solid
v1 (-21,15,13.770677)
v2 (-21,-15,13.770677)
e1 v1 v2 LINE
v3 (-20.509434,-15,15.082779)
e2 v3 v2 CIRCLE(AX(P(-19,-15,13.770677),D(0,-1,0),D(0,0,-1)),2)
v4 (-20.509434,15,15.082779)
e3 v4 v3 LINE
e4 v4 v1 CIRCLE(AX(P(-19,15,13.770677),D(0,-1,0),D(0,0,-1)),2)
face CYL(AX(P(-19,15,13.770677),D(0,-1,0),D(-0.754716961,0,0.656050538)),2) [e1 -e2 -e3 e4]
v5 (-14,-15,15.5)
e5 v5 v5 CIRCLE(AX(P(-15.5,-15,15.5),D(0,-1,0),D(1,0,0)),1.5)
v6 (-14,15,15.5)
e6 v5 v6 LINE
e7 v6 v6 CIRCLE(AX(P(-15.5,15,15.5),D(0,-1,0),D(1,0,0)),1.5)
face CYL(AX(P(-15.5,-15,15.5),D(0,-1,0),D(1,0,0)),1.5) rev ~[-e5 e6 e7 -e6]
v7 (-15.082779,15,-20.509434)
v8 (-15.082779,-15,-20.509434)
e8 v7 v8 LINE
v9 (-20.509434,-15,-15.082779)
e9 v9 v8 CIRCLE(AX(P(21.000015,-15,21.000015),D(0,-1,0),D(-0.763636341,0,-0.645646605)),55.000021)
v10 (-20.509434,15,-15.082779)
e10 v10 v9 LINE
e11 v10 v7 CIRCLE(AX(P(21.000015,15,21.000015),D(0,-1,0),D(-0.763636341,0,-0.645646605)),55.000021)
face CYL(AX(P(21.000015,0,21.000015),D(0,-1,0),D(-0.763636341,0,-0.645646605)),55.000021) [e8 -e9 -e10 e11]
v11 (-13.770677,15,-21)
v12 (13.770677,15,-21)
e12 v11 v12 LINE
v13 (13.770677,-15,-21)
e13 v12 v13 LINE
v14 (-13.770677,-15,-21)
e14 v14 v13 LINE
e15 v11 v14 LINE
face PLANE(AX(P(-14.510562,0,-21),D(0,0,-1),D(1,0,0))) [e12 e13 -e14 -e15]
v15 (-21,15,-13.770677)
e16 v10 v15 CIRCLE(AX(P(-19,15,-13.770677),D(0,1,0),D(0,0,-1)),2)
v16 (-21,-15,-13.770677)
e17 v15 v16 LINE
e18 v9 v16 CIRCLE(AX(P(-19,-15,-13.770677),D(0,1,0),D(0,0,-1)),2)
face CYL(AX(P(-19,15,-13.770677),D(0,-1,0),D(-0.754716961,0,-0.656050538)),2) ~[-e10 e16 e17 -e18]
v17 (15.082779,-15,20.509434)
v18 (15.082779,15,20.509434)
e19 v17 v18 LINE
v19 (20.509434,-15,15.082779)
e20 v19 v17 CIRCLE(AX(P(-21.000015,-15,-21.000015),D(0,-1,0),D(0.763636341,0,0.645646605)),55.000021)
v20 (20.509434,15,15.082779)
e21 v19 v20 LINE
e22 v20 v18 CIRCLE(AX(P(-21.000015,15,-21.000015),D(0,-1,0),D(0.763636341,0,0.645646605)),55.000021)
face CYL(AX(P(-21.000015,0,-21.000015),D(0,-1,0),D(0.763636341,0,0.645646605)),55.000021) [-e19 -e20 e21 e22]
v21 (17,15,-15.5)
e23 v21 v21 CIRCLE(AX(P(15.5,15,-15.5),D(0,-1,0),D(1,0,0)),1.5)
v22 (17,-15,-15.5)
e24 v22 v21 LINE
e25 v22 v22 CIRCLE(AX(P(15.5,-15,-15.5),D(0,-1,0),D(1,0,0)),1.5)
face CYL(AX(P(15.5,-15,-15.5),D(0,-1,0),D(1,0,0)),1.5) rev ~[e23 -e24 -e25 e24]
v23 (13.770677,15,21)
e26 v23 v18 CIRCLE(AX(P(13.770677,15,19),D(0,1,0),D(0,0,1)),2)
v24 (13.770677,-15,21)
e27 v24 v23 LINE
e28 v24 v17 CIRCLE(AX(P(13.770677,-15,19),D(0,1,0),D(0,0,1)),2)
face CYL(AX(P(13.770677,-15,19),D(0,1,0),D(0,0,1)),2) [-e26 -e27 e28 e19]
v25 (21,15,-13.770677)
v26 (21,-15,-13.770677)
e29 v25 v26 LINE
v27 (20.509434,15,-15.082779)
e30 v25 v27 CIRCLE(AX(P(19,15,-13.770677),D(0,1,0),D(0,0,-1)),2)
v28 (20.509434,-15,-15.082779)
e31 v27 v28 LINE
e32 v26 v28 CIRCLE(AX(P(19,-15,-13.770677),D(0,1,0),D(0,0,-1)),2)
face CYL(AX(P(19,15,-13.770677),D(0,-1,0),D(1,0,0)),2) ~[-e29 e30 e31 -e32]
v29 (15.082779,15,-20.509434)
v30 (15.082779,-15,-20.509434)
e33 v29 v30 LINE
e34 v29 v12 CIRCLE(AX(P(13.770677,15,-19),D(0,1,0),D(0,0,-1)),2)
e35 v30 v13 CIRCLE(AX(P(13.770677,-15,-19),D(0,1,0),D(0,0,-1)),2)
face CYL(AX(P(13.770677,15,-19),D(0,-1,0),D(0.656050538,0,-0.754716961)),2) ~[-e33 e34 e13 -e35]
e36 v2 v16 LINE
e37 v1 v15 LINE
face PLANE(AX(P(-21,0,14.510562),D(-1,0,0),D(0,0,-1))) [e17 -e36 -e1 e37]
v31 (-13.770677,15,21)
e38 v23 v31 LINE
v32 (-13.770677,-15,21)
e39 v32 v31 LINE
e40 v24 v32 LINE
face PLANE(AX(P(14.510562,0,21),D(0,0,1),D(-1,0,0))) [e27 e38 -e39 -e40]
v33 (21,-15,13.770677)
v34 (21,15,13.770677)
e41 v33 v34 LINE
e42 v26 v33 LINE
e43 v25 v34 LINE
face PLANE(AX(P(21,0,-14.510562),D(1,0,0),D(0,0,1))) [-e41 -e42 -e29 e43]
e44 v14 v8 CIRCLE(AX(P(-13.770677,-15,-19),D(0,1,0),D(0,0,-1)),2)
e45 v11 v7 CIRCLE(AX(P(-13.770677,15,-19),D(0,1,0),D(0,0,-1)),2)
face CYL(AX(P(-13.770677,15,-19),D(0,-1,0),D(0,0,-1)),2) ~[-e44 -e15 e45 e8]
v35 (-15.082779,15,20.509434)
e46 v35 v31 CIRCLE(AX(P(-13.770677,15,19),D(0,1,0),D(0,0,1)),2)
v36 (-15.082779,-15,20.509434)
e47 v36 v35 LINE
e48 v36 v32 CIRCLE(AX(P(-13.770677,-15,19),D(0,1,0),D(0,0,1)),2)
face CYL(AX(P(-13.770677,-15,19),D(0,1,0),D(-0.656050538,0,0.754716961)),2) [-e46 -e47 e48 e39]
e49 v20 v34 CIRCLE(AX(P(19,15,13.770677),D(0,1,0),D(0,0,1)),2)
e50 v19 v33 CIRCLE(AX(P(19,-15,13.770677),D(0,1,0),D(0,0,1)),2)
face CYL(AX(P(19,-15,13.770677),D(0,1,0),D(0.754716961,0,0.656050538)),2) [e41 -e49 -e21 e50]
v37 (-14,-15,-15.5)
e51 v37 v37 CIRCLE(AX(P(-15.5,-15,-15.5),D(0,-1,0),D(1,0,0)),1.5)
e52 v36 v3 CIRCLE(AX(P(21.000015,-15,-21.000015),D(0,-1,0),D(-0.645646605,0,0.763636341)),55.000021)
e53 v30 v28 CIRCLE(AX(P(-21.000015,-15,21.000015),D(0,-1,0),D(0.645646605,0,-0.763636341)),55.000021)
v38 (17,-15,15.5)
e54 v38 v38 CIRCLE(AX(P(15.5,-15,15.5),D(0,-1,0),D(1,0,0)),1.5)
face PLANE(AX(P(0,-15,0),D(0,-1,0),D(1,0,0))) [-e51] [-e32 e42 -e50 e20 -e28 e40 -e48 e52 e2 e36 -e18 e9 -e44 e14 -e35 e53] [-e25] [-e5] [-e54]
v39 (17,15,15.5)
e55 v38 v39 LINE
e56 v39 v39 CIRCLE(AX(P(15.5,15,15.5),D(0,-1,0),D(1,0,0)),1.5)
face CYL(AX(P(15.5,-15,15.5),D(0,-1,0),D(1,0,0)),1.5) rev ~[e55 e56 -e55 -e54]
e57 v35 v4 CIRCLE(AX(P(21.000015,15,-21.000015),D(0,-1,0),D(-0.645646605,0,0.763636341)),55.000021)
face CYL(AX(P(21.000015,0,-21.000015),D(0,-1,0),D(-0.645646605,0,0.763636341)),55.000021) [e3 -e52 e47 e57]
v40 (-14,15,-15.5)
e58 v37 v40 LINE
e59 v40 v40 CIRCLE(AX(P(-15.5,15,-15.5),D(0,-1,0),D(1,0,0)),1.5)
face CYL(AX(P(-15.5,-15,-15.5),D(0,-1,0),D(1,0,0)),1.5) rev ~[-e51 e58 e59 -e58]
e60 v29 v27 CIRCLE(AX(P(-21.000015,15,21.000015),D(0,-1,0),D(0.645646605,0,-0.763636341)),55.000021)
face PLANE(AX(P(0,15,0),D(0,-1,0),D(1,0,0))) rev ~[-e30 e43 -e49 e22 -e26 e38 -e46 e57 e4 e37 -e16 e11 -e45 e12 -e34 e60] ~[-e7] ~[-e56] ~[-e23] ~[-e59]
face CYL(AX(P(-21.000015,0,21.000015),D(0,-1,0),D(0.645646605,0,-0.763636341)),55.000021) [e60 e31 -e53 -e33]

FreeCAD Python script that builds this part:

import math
import FreeCAD as App
import Part
import Sketcher
from FreeCAD import Vector


def edges_at(feature, points):
    """Names of the edges that pass closest to the given points."""
    edges = feature.Shape.Edges
    near = lambda p: min(range(len(edges)), key=lambda i: edges[i].distToShape(Part.Vertex(*p))[0])
    return sorted({f"Edge{near(p) + 1}" for p in points})

doc = App.newDocument("Part")
body = doc.addObject("PartDesign::Body", "Body")

# Sketch on XZ plane
sketch1 = body.newObject("Sketcher::SketchObject", "Sketch")
sketch1.AttachmentSupport = (doc.getObject("XZ_Plane"), [""])
sketch1.MapMode = "FlatFace"
sketch1.addGeometry(Part.ArcOfCircle(Part.Circle(Vector(21, -21, 0), Vector(0, 0, 1), 55), math.radians(130.21), math.radians(139.79)), False)
sketch1.addGeometry(Part.LineSegment(Vector(-21, 15, 0), Vector(-21, -15, 0)), False)
sketch1.addGeometry(Part.ArcOfCircle(Part.Circle(Vector(21, 21, 0), Vector(0, 0, 1), 55), math.radians(-139.79), math.radians(-130.21)), False)
sketch1.addGeometry(Part.LineSegment(Vector(-15, -21, 0), Vector(15, -21, 0)), False)
sketch1.addGeometry(Part.ArcOfCircle(Part.Circle(Vector(-21, 21, 0), Vector(0, 0, 1), 55), math.radians(-49.79), math.radians(-40.21)), False)
sketch1.addGeometry(Part.LineSegment(Vector(21, -15, 0), Vector(21, 15, 0)), False)
sketch1.addGeometry(Part.ArcOfCircle(Part.Circle(Vector(-21, -21, 0), Vector(0, 0, 1), 55), math.radians(40.21), math.radians(49.79)), False)
sketch1.addGeometry(Part.LineSegment(Vector(15, 21, 0), Vector(-15, 21, 0)), False)
sketch1.addConstraint(Sketcher.Constraint("Coincident", 0, 2, 1, 1))
sketch1.addConstraint(Sketcher.Constraint("Coincident", 1, 2, 2, 1))
sketch1.addConstraint(Sketcher.Constraint("Coincident", 2, 2, 3, 1))
sketch1.addConstraint(Sketcher.Constraint("Coincident", 3, 2, 4, 1))
sketch1.addConstraint(Sketcher.Constraint("Coincident", 4, 2, 5, 1))
sketch1.addConstraint(Sketcher.Constraint("Coincident", 5, 2, 6, 1))
sketch1.addConstraint(Sketcher.Constraint("Coincident", 6, 2, 7, 1))
sketch1.addConstraint(Sketcher.Constraint("Coincident", 7, 2, 0, 1))
sketch1.addConstraint(Sketcher.Constraint("Vertical", 1))
sketch1.addConstraint(Sketcher.Constraint("Horizontal", 3))
sketch1.addConstraint(Sketcher.Constraint("Vertical", 5))
sketch1.addConstraint(Sketcher.Constraint("Horizontal", 7))
sketch1.addConstraint(Sketcher.Constraint("Equal", 0, 2))
sketch1.addConstraint(Sketcher.Constraint("Equal", 2, 4))
sketch1.addConstraint(Sketcher.Constraint("Equal", 4, 6))
sketch1.addConstraint(Sketcher.Constraint("Symmetric", 0, 3, 4, 3, -1, 1))
sketch1.addConstraint(Sketcher.Constraint("Symmetric", 2, 3, 6, 3, -1, 1))
sketch1.addConstraint(Sketcher.Constraint("Symmetric", 2, 3, 4, 3, -2))
sketch1.addConstraint(Sketcher.Constraint("Horizontal", 1, 2, 4, 2))
sketch1.addConstraint(Sketcher.Constraint("Vertical", 3, 2, 6, 2))
sketch1.addConstraint(Sketcher.Constraint("Equal", 7, 1))
sketch1.addConstraint(Sketcher.Constraint("DistanceX", 0, 2, -1, 1, 21.0))
sketch1.addConstraint(Sketcher.Constraint("DistanceY", 2, 2, -1, 1, 21.0))
sketch1.addConstraint(Sketcher.Constraint("Radius", 0, 55.000021))
sketch1.addConstraint(Sketcher.Constraint("DistanceX", 3, 1, 3, 2, 29.021124))
pad1 = body.newObject("PartDesign::Pad", "Pad")
pad1.Profile = sketch1
pad1.Length = 30
pad1.Midplane = True
doc.recompute()

fillet = body.newObject("PartDesign::Fillet", "Fillet")
fillet.Base = (pad1, edges_at(pad1, [
    (14.511, 0, 21),
    (21, 0, 14.511),
    (21, 0, -14.511),
    (14.511, 0, -21),
    (-14.511, 0, -21),
    (-21, 0, -14.511),
    (-21, 0, 14.511),
    (-14.511, 0, 21),
]))
fillet.Radius = 2

# Sketch on XZ plane
sketch2 = body.newObject("Sketcher::SketchObject", "Sketch001")
sketch2.AttachmentSupport = (doc.getObject("XZ_Plane"), [""])
sketch2.MapMode = "FlatFace"
sketch2.AttachmentOffset = App.Placement(Vector(0, 0, 15), App.Rotation())
sketch2.addGeometry(Part.Circle(Vector(15.5, 15.5, 0), Vector(0, 0, 1), 1.5), False)
sketch2.addGeometry(Part.Circle(Vector(-15.5, 15.5, 0), Vector(0, 0, 1), 1.5), False)
sketch2.addGeometry(Part.Circle(Vector(-15.5, -15.5, 0), Vector(0, 0, 1), 1.5), False)
sketch2.addGeometry(Part.Circle(Vector(15.5, -15.5, 0), Vector(0, 0, 1), 1.5), False)
sketch2.addConstraint(Sketcher.Constraint("Equal", 0, 1))
sketch2.addConstraint(Sketcher.Constraint("Equal", 1, 2))
sketch2.addConstraint(Sketcher.Constraint("Equal", 2, 3))
sketch2.addConstraint(Sketcher.Constraint("Symmetric", 0, 3, 2, 3, -1, 1))
sketch2.addConstraint(Sketcher.Constraint("Symmetric", 1, 3, 3, 3, -1, 1))
sketch2.addConstraint(Sketcher.Constraint("Symmetric", 0, 3, 1, 3, -2))
sketch2.addConstraint(Sketcher.Constraint("Diameter", 0, 3.0))
sketch2.addConstraint(Sketcher.Constraint("DistanceX", 1, 3, 0, 3, 31.0))
sketch2.addConstraint(Sketcher.Constraint("DistanceY", 2, 3, 1, 3, 31.0))
pocket1 = body.newObject("PartDesign::Pocket", "Pocket")
pocket1.Profile = sketch2
pocket1.Type = "ThroughAll"

doc.recompute()
